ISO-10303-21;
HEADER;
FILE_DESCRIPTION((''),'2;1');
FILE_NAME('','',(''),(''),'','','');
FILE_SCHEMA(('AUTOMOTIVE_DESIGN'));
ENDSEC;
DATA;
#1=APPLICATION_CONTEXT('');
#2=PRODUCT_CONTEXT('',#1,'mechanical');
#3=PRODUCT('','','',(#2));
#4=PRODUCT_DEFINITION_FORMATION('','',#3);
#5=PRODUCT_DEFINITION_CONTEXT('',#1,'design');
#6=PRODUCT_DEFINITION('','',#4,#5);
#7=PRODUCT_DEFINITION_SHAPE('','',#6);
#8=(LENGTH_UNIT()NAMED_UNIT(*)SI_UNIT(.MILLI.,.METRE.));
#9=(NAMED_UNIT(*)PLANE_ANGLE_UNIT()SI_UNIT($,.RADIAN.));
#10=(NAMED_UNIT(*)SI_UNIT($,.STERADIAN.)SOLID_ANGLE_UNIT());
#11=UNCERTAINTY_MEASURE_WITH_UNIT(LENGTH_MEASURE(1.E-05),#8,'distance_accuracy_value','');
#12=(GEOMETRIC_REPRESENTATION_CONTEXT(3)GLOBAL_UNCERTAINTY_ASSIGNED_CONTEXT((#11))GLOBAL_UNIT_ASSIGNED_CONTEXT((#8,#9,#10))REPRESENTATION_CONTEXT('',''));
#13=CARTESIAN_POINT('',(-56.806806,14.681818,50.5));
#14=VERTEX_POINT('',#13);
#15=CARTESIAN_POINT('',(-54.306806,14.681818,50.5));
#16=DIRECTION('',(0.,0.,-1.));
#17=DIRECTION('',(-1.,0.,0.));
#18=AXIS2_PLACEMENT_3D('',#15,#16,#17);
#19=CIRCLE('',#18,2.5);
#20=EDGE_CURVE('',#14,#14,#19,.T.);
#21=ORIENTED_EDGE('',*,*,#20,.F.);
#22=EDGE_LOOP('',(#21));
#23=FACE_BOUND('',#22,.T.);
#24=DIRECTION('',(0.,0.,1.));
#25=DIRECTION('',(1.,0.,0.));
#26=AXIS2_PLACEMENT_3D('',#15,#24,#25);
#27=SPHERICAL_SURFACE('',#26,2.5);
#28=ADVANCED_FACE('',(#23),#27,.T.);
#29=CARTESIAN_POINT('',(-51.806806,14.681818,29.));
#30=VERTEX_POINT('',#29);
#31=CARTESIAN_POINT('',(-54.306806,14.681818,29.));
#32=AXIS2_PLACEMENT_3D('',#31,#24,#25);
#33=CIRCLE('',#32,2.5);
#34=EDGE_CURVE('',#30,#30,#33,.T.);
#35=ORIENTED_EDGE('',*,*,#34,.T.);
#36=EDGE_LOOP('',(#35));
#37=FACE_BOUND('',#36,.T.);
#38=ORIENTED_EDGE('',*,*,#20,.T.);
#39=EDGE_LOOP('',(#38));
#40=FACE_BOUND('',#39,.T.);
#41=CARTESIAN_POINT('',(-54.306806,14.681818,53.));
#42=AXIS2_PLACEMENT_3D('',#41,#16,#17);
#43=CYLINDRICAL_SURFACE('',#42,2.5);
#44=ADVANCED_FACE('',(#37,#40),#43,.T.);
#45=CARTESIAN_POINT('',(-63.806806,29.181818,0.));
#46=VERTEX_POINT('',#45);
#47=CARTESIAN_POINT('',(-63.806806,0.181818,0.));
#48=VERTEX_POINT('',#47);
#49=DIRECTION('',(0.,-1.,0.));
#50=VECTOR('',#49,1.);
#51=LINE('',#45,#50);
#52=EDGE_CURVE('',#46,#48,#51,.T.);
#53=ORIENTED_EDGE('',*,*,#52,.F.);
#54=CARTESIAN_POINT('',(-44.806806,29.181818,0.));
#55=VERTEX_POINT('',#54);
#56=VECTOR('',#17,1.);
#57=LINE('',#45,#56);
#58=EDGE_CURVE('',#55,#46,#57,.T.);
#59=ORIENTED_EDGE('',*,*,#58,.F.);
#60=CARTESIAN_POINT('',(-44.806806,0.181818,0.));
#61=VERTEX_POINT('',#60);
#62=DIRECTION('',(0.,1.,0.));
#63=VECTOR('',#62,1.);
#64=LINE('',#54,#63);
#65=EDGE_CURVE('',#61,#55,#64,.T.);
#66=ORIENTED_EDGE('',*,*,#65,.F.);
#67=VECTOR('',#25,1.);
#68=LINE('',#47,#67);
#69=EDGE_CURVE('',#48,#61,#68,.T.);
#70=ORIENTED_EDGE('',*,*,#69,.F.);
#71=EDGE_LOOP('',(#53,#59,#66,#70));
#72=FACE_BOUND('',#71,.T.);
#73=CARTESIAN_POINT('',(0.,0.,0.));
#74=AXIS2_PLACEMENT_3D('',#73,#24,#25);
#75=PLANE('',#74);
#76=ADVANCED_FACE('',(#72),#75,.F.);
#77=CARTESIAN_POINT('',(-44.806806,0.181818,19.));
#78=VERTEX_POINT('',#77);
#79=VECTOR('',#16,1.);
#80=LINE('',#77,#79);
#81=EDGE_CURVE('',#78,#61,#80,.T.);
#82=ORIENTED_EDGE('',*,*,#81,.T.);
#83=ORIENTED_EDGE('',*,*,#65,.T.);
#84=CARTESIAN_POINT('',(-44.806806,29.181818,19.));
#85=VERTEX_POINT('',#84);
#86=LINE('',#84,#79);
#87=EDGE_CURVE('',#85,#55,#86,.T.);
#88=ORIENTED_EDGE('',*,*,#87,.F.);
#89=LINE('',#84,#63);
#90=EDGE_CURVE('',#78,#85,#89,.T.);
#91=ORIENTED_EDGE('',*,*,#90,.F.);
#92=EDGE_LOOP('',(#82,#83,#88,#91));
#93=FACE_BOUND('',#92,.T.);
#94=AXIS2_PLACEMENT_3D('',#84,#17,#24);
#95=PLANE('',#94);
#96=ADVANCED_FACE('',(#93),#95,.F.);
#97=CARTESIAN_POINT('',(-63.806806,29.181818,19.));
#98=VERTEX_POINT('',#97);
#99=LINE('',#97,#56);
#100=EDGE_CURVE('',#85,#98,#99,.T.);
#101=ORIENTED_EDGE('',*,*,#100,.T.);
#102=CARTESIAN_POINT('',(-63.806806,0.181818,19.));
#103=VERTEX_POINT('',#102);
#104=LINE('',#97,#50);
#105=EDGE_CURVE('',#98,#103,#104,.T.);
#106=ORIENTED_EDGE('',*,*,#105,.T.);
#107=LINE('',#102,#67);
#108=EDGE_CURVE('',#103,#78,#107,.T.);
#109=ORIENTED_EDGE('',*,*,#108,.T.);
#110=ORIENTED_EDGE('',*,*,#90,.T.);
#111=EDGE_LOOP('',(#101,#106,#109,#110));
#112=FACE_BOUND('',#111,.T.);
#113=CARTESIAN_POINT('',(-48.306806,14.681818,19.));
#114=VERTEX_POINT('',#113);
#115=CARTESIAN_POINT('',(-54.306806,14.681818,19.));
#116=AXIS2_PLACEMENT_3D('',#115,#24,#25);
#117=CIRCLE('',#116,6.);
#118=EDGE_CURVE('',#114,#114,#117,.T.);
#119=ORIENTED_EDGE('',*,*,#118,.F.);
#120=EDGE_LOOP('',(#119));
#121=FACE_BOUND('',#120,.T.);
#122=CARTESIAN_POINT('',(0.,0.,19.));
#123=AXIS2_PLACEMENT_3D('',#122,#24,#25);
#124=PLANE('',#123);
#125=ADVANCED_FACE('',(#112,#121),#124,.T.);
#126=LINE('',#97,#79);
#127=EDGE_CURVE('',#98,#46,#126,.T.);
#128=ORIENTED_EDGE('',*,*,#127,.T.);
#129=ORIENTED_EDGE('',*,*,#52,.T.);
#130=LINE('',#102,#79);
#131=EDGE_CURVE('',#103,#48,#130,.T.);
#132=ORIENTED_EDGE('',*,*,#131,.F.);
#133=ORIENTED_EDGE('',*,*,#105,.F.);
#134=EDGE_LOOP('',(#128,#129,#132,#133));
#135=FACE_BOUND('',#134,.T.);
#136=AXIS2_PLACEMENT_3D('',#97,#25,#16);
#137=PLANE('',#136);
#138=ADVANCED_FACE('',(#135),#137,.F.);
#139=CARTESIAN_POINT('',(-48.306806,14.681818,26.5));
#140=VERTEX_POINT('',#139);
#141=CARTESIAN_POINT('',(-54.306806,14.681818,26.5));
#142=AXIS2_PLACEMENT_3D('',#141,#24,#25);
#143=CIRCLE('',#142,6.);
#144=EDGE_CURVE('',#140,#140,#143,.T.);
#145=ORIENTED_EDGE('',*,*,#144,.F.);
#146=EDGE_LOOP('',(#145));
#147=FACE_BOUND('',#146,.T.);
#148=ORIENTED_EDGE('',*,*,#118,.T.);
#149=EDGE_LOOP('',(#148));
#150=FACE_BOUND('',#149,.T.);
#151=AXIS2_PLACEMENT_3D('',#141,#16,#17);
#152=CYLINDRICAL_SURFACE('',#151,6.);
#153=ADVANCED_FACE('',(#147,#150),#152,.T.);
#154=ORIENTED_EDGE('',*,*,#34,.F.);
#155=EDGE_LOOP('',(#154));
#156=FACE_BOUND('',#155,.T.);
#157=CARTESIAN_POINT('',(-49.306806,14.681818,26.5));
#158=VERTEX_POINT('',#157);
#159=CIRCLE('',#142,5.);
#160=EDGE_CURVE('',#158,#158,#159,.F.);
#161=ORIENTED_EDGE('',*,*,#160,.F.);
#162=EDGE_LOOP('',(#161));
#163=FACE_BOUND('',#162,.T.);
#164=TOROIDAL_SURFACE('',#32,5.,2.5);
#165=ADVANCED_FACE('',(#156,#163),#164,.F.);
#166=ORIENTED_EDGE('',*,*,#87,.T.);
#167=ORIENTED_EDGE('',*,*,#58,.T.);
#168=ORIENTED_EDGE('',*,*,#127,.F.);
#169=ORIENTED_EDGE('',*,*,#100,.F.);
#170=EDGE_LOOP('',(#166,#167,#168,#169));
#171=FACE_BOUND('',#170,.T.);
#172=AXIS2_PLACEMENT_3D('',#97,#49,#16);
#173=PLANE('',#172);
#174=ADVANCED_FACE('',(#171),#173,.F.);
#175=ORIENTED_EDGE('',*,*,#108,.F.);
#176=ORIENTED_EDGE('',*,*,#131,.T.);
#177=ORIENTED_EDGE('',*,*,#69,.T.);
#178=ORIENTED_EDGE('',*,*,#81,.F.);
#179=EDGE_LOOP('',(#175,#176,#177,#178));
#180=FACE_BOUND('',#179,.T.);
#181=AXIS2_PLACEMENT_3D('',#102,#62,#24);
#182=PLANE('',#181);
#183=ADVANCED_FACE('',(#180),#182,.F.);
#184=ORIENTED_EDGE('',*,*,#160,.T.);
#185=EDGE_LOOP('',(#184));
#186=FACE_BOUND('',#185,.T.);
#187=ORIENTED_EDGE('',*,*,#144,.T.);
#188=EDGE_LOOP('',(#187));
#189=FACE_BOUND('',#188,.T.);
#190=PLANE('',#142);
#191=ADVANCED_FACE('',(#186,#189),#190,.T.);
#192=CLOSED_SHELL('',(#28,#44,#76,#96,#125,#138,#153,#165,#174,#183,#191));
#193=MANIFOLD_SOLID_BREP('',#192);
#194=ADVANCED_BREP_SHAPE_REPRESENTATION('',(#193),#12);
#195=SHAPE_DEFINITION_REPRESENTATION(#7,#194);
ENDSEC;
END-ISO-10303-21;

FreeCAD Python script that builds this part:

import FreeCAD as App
import Part
import Sketcher

V = App.Vector
Q = App.Units.Quantity


def edges_at(feature, points):
    """Names of the edges that pass closest to the given points."""
    edges = feature.Shape.Edges
    near = lambda p: min(range(len(edges)), key=lambda i: edges[i].distToShape(Part.Vertex(*p))[0])
    return sorted({f"Edge{near(p) + 1}" for p in points})

doc = App.newDocument("Part")
body = doc.addObject("PartDesign::Body", "Body")

sketch1 = body.newObject("Sketcher::SketchObject", "Sketch")
sketch1.AttachmentSupport = (doc.getObject("XY_Plane"), [""])
sketch1.MapMode = "FlatFace"
sketch1.addGeometry(Part.LineSegment(V(-63.806806, 29.181818, 0), V(-63.806806, 0.181818, 0)), False)
sketch1.addGeometry(Part.LineSegment(V(-63.806806, 0.181818, 0), V(-44.806806, 0.181818, 0)), False)
sketch1.addGeometry(Part.LineSegment(V(-44.806806, 0.181818, 0), V(-44.806806, 29.181818, 0)), False)
sketch1.addGeometry(Part.LineSegment(V(-44.806806, 29.181818, 0), V(-63.806806, 29.181818, 0)), False)
sketch1.addConstraint(Sketcher.Constraint("Coincident", 0, 2, 1, 1))
sketch1.addConstraint(Sketcher.Constraint("Coincident", 1, 2, 2, 1))
sketch1.addConstraint(Sketcher.Constraint("Coincident", 2, 2, 3, 1))
sketch1.addConstraint(Sketcher.Constraint("Coincident", 3, 2, 0, 1))
sketch1.addConstraint(Sketcher.Constraint("Vertical", 0))
sketch1.addConstraint(Sketcher.Constraint("Horizontal", 1))
sketch1.addConstraint(Sketcher.Constraint("Vertical", 2))
sketch1.addConstraint(Sketcher.Constraint("Horizontal", 3))
sketch1.addConstraint(Sketcher.Constraint("DistanceX", 1, 1, 1, 2, Q("19 mm")))
sketch1.addConstraint(Sketcher.Constraint("DistanceY", 0, 2, 0, 1, Q("29 mm")))
sketch1.addConstraint(Sketcher.Constraint("DistanceY", -1, 1, 0, 2, Q("0.181818 mm")))
sketch1.addConstraint(Sketcher.Constraint("DistanceX", 0, 2, -1, 1, Q("63.806806 mm")))
pad1 = body.newObject("PartDesign::Pad", "Pad")
pad1.Profile = sketch1
pad1.Length = 19

sketch2 = body.newObject("Sketcher::SketchObject", "Sketch001")
sketch2.AttachmentSupport = (doc.getObject("XY_Plane"), [""])
sketch2.MapMode = "FlatFace"
sketch2.AttachmentOffset = App.Placement(V(0, 0, 19), App.Rotation())
sketch2.addGeometry(Part.Circle(V(-54.306806, 14.681818, 0), V(0, 0, 1), 6), False)
sketch2.addConstraint(Sketcher.Constraint("Diameter", 0, Q("12 mm")))
sketch2.addConstraint(Sketcher.Constraint("DistanceY", -1, 1, 0, 3, Q("14.681818 mm")))
sketch2.addConstraint(Sketcher.Constraint("DistanceX", 0, 3, -1, 1, Q("54.306806 mm")))
pad2 = body.newObject("PartDesign::Pad", "Pad001")
pad2.Profile = sketch2
pad2.Length = 7.5

sketch3 = body.newObject("Sketcher::SketchObject", "Sketch002")
sketch3.AttachmentSupport = (doc.getObject("XY_Plane"), [""])
sketch3.MapMode = "FlatFace"
sketch3.AttachmentOffset = App.Placement(V(0, 0, 26.5), App.Rotation())
sketch3.addGeometry(Part.Circle(V(-54.306806, 14.681818, 0), V(0, 0, 1), 2.5), False)
sketch3.addConstraint(Sketcher.Constraint("Diameter", 0, Q("5 mm")))
sketch3.addConstraint(Sketcher.Constraint("DistanceY", -1, 1, 0, 3, Q("14.681818 mm")))
sketch3.addConstraint(Sketcher.Constraint("DistanceX", 0, 3, -1, 1, Q("54.306806 mm")))
pad3 = body.newObject("PartDesign::Pad", "Pad002")
pad3.Profile = sketch3
pad3.Length = 26.5
doc.recompute()

fillet = body.newObject("PartDesign::Fillet", "Fillet")
fillet.Base = (pad3, edges_at(pad3, [(-56.807, 14.682, 26.5), (-56.807, 14.682, 53)]))
fillet.Radius = 2.5

doc.recompute()
